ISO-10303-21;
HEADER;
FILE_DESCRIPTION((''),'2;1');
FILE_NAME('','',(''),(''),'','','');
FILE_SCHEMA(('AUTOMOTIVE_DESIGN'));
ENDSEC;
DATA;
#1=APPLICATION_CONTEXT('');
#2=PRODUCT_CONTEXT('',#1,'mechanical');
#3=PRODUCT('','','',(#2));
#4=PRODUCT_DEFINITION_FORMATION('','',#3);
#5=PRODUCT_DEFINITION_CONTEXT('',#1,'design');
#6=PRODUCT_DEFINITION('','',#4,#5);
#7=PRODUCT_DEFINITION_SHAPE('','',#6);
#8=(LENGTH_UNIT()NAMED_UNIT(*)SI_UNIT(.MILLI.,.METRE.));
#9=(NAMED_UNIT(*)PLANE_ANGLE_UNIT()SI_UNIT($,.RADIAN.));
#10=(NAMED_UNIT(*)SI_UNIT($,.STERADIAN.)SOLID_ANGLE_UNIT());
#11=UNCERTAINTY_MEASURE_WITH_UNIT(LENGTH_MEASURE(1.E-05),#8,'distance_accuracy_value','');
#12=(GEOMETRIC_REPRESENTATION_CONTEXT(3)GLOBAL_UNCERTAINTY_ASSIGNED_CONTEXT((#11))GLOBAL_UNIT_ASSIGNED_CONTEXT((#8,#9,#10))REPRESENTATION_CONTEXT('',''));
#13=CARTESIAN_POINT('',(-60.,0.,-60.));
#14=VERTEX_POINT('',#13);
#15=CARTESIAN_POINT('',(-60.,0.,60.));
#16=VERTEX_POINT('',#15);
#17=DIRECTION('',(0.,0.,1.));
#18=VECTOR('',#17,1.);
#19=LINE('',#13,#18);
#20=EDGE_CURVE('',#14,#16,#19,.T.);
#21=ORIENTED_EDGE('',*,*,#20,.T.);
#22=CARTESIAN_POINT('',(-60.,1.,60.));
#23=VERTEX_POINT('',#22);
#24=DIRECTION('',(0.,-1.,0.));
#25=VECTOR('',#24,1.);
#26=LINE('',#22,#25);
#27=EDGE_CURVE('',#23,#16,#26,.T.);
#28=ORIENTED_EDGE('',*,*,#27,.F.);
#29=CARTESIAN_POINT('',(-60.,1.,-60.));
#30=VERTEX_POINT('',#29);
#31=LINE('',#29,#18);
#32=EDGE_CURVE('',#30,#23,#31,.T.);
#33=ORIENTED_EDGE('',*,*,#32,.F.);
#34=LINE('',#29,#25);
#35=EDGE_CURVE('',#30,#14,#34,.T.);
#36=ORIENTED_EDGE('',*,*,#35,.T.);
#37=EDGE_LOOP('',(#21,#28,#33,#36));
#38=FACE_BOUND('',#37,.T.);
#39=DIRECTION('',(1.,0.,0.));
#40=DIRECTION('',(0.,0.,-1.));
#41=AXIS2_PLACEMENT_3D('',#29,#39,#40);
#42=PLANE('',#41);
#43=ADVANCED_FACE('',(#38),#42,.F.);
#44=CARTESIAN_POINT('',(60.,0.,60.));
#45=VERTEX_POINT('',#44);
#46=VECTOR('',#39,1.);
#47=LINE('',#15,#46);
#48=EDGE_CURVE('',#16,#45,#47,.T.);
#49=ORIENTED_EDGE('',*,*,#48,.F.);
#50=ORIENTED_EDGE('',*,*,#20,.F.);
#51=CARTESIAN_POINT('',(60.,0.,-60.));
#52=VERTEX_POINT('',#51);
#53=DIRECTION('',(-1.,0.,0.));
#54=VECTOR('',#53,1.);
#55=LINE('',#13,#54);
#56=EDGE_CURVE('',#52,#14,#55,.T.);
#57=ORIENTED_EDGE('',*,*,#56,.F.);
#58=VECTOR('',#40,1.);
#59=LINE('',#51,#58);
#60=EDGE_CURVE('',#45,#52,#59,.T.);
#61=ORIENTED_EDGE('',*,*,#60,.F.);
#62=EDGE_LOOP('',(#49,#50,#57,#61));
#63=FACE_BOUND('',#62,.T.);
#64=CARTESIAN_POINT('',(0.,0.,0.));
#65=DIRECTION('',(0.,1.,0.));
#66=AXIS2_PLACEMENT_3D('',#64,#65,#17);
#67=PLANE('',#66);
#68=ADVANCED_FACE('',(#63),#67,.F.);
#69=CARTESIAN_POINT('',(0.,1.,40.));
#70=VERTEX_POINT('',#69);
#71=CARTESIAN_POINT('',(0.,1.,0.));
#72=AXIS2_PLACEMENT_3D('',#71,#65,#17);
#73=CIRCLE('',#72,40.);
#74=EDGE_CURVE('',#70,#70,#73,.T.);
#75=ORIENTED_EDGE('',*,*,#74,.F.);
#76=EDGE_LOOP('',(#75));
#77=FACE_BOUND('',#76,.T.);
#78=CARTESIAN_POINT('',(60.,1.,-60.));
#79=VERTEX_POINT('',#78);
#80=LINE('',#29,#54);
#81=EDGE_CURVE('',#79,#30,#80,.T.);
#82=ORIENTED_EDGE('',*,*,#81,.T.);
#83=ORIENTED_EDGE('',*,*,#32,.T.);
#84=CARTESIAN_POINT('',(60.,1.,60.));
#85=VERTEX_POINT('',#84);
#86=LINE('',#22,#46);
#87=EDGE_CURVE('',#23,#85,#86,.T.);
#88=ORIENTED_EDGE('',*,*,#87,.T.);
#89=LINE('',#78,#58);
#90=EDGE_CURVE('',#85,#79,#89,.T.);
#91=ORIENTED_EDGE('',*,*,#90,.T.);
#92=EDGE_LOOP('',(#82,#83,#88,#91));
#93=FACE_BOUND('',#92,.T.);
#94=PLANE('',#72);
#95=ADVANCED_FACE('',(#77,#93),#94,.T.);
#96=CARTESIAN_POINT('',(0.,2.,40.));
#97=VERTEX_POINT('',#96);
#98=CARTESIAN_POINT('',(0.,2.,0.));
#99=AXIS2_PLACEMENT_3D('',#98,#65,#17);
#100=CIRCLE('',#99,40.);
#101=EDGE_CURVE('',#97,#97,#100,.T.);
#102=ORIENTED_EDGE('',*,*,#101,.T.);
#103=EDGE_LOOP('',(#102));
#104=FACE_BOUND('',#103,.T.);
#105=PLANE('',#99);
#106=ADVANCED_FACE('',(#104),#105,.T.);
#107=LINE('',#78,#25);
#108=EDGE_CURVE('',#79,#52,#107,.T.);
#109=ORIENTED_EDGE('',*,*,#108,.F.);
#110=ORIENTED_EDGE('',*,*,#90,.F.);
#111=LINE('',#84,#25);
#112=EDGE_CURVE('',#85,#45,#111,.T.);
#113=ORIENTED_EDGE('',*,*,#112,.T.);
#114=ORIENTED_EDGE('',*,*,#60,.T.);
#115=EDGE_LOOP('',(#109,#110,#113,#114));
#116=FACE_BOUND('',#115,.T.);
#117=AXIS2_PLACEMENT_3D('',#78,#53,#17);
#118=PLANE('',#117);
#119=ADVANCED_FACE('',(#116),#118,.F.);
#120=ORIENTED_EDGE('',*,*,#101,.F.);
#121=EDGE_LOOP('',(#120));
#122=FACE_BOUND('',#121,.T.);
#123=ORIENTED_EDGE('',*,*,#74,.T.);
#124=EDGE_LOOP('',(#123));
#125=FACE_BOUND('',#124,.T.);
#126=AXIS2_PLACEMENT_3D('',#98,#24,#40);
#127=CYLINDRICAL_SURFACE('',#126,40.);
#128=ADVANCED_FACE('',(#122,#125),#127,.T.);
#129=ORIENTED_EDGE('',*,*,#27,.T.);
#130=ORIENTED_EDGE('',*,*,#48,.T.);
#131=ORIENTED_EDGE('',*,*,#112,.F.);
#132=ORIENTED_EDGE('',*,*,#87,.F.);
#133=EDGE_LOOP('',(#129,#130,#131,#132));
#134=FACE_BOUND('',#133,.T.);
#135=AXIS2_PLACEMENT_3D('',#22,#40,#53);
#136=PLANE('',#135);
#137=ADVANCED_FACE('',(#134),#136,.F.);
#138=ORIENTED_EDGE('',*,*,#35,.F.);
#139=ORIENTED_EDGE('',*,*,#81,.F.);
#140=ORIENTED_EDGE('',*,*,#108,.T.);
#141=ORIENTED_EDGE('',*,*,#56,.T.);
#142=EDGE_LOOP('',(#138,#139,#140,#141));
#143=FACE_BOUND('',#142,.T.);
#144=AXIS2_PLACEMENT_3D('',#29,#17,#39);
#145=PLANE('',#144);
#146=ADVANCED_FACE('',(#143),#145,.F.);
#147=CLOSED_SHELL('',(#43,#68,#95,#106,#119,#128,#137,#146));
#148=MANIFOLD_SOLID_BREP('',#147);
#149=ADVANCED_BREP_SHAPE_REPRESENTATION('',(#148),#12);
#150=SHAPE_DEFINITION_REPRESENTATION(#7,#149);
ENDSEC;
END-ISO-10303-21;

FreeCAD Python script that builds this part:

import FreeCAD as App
import Part
import Sketcher

V = App.Vector
Q = App.Units.Quantity


def add_polygon(sketch, points):
    """Adds a closed chain of lines whose ends are joined by coincident constraints."""
    first, n = sketch.GeometryCount, len(points)
    for a, b in zip(points, points[1:] + points[:1]):
        sketch.addGeometry(Part.LineSegment(App.Vector(*a, 0), App.Vector(*b, 0)), False)
    for i in range(n):
        sketch.addConstraint(Sketcher.Constraint("Coincident", first + i, 2, first + (i + 1) % n, 1))

doc = App.newDocument("Part")
body = doc.addObject("PartDesign::Body", "Body")

# Sketch on XZ plane
sketch1 = doc.addObject("Sketcher::SketchObject", "Sketch")
body.addObject(sketch1)
sketch1.AttachmentSupport = (doc.XZ_Plane, [""])
sketch1.MapMode = "FlatFace"
add_polygon(sketch1, [(-60, -60), (-60, 60), (60, 60), (60, -60)])  # lines 0-3
sketch1.addConstraint(Sketcher.Constraint("Vertical", 0))
sketch1.addConstraint(Sketcher.Constraint("Horizontal", 1))
sketch1.addConstraint(Sketcher.Constraint("Vertical", 2))
sketch1.addConstraint(Sketcher.Constraint("Horizontal", 3))
sketch1.addConstraint(Sketcher.Constraint("Symmetric", 0, 2, 2, 2, -1, 1))
sketch1.addConstraint(Sketcher.Constraint("Equal", 3, 0))
sketch1.addConstraint(Sketcher.Constraint("DistanceX", 1, 1, 1, 2, Q("120 mm")))
pad1 = doc.addObject("PartDesign::Pad", "Pad")
body.addObject(pad1)
pad1.Profile = sketch1
pad1.Length = 1
pad1.Reversed = True

# Sketch on XZ plane
sketch2 = doc.addObject("Sketcher::SketchObject", "Sketch001")
body.addObject(sketch2)
sketch2.AttachmentSupport = (doc.XZ_Plane, [""])
sketch2.MapMode = "FlatFace"
sketch2.AttachmentOffset = App.Placement(V(0, 0, -1), App.Rotation())
sketch2.addGeometry(Part.Circle(V(0, 0, 0), V(0, 0, 1), 40), False)
sketch2.addConstraint(Sketcher.Constraint("Coincident", 0, 3, -1, 1))
sketch2.addConstraint(Sketcher.Constraint("Diameter", 0, Q("80 mm")))
pad2 = doc.addObject("PartDesign::Pad", "Pad001")
body.addObject(pad2)
pad2.Profile = sketch2
pad2.Length = 1
pad2.Reversed = True

doc.recompute()
